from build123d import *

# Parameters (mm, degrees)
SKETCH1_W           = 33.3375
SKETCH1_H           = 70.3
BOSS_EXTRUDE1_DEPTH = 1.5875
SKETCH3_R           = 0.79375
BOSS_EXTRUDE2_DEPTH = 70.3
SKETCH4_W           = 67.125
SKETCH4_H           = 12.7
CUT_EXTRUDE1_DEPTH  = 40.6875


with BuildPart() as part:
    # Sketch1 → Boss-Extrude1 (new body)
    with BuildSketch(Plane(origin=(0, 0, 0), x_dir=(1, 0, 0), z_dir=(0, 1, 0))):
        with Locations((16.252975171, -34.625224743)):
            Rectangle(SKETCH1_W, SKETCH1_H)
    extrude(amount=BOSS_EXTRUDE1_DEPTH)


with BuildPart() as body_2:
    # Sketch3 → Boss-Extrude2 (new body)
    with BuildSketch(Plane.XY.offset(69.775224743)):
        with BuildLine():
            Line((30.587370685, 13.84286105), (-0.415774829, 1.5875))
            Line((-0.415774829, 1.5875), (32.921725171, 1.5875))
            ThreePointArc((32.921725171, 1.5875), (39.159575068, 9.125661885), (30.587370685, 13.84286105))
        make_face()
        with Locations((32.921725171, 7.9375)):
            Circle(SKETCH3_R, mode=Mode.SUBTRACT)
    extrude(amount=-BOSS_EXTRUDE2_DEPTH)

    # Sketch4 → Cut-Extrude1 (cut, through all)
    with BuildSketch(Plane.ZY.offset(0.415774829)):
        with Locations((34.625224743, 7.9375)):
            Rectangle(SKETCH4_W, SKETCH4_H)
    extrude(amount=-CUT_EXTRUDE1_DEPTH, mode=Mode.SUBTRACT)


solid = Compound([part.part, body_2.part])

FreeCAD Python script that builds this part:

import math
import FreeCAD as App
import Part
import Sketcher

V = App.Vector
Q = App.Units.Quantity

doc = App.newDocument("Part")
body = doc.addObject("PartDesign::Body", "Body")

# Sketch on XZ plane
sketch1 = body.newObject("Sketcher::SketchObject", "Sketch")
sketch1.AttachmentSupport = (doc.getObject("XZ_Plane"), [""])
sketch1.MapMode = "FlatFace"
sketch1.addGeometry(Part.LineSegment(V(-0.415775, -0.524775, 0), V(-0.415775, 69.775225, 0)), False)
sketch1.addGeometry(Part.LineSegment(V(-0.415775, 69.775225, 0), V(32.921725, 69.775225, 0)), False)
sketch1.addGeometry(Part.LineSegment(V(32.921725, 69.775225, 0), V(32.921725, -0.524775, 0)), False)
sketch1.addGeometry(Part.LineSegment(V(32.921725, -0.524775, 0), V(-0.415775, -0.524775, 0)), False)
sketch1.addConstraint(Sketcher.Constraint("Coincident", 0, 2, 1, 1))
sketch1.addConstraint(Sketcher.Constraint("Coincident", 1, 2, 2, 1))
sketch1.addConstraint(Sketcher.Constraint("Coincident", 2, 2, 3, 1))
sketch1.addConstraint(Sketcher.Constraint("Coincident", 3, 2, 0, 1))
sketch1.addConstraint(Sketcher.Constraint("Vertical", 0))
sketch1.addConstraint(Sketcher.Constraint("Horizontal", 1))
sketch1.addConstraint(Sketcher.Constraint("Vertical", 2))
sketch1.addConstraint(Sketcher.Constraint("Horizontal", 3))
sketch1.addConstraint(Sketcher.Constraint("DistanceX", 1, 1, 1, 2, Q("1.3125 in")))
sketch1.addConstraint(Sketcher.Constraint("DistanceY", 0, 1, 0, 2, 70.3))
sketch1.addConstraint(Sketcher.Constraint("DistanceX", 0, 2, -1, 1, 0.415775))
sketch1.addConstraint(Sketcher.Constraint("DistanceY", -1, 1, 0, 2, 69.775225))
pad1 = body.newObject("PartDesign::Pad", "Pad")
pad1.Profile = sketch1
pad1.Length = Q("0.0625 in")
pad1.Reversed = True
body2 = doc.addObject("PartDesign::Body", "Body001")
body2.AllowCompound = True

# Sketch on XY plane
sketch2 = body2.newObject("Sketcher::SketchObject", "Sketch001")
sketch2.AttachmentSupport = (doc.getObject("XY_Plane001"), [""])
sketch2.MapMode = "FlatFace"
sketch2.AttachmentOffset = App.Placement(V(0, 0, 69.775225), App.Rotation())
sketch2.addGeometry(Part.LineSegment(V(30.587371, 13.842861, 0), V(-0.415775, 1.5875, 0)), False)
sketch2.addGeometry(Part.LineSegment(V(-0.415775, 1.5875, 0), V(32.921725, 1.5875, 0)), False)
sketch2.addGeometry(Part.ArcOfCircle(Part.Circle(V(32.921725, 7.9375, 0), V(0, 0, 1), 6.35), math.radians(-90), math.radians(111.568596)), False)
sketch2.addGeometry(Part.Circle(V(32.921725, 7.9375, 0), V(0, 0, 1), 0.79375), False)
sketch2.addConstraint(Sketcher.Constraint("Coincident", 0, 2, 1, 1))
sketch2.addConstraint(Sketcher.Constraint("Tangent", 1, 2, 2, 1))
sketch2.addConstraint(Sketcher.Constraint("Tangent", 2, 2, 0, 1))
sketch2.addConstraint(Sketcher.Constraint("Horizontal", 1))
sketch2.addConstraint(Sketcher.Constraint("Coincident", 3, 3, 2, 3))
sketch2.addConstraint(Sketcher.Constraint("Radius", 2, Q("0.25 in")))
sketch2.addConstraint(Sketcher.Constraint("Diameter", 3, Q("0.0625 in")))
sketch2.addConstraint(Sketcher.Constraint("DistanceX", 1, 1, 1, 2, Q("1.3125 in")))
sketch2.addConstraint(Sketcher.Constraint("DistanceY", -1, 1, 2, 3, Q("0.3125 in")))
sketch2.addConstraint(Sketcher.Constraint("DistanceX", -1, 1, 2, 2, 30.587371))
pad2 = body2.newObject("PartDesign::Pad", "Pad001")
pad2.Profile = sketch2
pad2.Length = 70.3
pad2.Reversed = True

# Sketch on YZ plane
sketch3 = body2.newObject("Sketcher::SketchObject", "Sketch002")
sketch3.AttachmentSupport = (doc.getObject("YZ_Plane001"), [""])
sketch3.MapMode = "FlatFace"
sketch3.AttachmentOffset = App.Placement(V(0, 0, -0.415775), App.Rotation())
sketch3.addGeometry(Part.LineSegment(V(14.2875, 1.062725, 0), V(1.5875, 1.062725, 0)), False)
sketch3.addGeometry(Part.LineSegment(V(1.5875, 1.062725, 0), V(1.5875, 68.187725, 0)), False)
sketch3.addGeometry(Part.LineSegment(V(1.5875, 68.187725, 0), V(14.2875, 68.187725, 0)), False)
sketch3.addGeometry(Part.LineSegment(V(14.2875, 68.187725, 0), V(14.2875, 1.062725, 0)), False)
sketch3.addConstraint(Sketcher.Constraint("Coincident", 0, 2, 1, 1))
sketch3.addConstraint(Sketcher.Constraint("Coincident", 1, 2, 2, 1))
sketch3.addConstraint(Sketcher.Constraint("Coincident", 2, 2, 3, 1))
sketch3.addConstraint(Sketcher.Constraint("Coincident", 3, 2, 0, 1))
sketch3.addConstraint(Sketcher.Constraint("Horizontal", 0))
sketch3.addConstraint(Sketcher.Constraint("Vertical", 1))
sketch3.addConstraint(Sketcher.Constraint("Horizontal", 2))
sketch3.addConstraint(Sketcher.Constraint("Vertical", 3))
sketch3.addConstraint(Sketcher.Constraint("DistanceX", 0, 2, 0, 1, Q("0.5 in")))
sketch3.addConstraint(Sketcher.Constraint("DistanceX", -1, 1, 0, 2, Q("0.0625 in")))
sketch3.addConstraint(Sketcher.Constraint("DistanceY", 1, 1, 1, 2, 67.125))
sketch3.addConstraint(Sketcher.Constraint("DistanceY", -1, 1, 0, 2, 1.062725))
pocket1 = body2.newObject("PartDesign::Pocket", "Pocket")
pocket1.Profile = sketch3
pocket1.Type = "ThroughAll"
pocket1.Reversed = True

doc.recompute()
